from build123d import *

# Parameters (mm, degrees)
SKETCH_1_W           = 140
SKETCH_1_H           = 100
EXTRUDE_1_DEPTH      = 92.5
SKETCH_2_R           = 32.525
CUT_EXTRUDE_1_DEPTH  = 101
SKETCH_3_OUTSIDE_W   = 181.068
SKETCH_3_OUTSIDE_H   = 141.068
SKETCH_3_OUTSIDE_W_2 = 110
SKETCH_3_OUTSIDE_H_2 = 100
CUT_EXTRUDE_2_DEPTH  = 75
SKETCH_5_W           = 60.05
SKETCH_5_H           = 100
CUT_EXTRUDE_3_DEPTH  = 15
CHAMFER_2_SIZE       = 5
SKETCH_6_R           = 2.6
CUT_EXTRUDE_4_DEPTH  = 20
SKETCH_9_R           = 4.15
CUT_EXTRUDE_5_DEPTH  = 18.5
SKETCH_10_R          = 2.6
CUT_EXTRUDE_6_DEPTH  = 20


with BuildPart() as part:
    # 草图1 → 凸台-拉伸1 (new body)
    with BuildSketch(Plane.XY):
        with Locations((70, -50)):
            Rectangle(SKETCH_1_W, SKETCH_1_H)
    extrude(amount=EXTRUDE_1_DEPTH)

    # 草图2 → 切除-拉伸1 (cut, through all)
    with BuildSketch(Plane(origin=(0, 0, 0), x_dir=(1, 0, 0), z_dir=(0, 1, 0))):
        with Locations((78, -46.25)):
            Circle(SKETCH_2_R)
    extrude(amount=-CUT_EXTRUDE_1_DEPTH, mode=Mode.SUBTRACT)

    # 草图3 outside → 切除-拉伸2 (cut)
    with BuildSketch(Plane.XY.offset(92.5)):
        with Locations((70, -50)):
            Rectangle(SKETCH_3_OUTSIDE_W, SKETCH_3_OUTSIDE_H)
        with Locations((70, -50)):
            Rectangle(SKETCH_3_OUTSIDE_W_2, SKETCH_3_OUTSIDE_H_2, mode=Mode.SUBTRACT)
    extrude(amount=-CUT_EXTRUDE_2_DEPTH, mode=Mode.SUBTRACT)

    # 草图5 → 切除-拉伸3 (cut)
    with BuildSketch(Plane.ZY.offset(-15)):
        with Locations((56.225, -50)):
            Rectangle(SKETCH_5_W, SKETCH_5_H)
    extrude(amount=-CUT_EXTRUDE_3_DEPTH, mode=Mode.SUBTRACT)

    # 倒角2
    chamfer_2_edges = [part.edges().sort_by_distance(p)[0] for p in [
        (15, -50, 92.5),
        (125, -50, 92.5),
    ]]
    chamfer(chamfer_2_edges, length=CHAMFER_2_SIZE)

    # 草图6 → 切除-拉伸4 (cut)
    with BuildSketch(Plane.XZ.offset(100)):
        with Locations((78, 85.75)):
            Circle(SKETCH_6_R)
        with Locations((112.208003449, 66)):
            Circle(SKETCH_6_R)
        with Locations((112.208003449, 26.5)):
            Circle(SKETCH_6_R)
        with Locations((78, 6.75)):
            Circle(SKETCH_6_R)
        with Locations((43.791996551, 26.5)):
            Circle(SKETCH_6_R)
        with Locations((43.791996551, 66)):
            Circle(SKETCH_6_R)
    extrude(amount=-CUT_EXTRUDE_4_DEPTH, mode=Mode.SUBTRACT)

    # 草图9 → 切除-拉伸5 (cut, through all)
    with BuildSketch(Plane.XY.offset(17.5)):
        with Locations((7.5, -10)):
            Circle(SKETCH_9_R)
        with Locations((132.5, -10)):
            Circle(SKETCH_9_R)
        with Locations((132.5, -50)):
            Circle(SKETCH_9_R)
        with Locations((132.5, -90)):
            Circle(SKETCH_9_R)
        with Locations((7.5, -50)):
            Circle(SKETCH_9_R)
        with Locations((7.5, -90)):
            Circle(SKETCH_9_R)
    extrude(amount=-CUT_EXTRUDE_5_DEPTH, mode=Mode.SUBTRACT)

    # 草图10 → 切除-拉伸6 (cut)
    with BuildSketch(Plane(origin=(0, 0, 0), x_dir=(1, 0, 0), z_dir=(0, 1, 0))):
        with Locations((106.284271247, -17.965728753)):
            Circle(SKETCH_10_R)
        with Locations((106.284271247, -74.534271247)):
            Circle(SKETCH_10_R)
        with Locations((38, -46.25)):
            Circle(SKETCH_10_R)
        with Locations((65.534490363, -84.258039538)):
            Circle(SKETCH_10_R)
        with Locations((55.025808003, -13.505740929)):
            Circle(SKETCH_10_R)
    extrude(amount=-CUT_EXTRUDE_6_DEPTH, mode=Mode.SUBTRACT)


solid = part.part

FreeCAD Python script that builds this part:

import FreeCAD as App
import Part
import Sketcher

V = App.Vector
Q = App.Units.Quantity


def edges_at(feature, points):
    """Names of the edges that pass closest to the given points."""
    edges = feature.Shape.Edges
    near = lambda p: min(range(len(edges)), key=lambda i: edges[i].distToShape(Part.Vertex(*p))[0])
    return sorted({f"Edge{near(p) + 1}" for p in points})

doc = App.newDocument("Part")
body = doc.addObject("PartDesign::Body", "Body")

sketch1 = doc.addObject("Sketcher::SketchObject", "Sketch")
body.addObject(sketch1)
sketch1.AttachmentSupport = (doc.XY_Plane, [""])
sketch1.MapMode = "FlatFace"
sketch1.addGeometry([
    Part.LineSegment(V(0, 0, 0), V(0, -100, 0)),
    Part.LineSegment(V(0, -100, 0), V(140, -100, 0)),
    Part.LineSegment(V(140, -100, 0), V(140, 0, 0)),
    Part.LineSegment(V(140, 0, 0), V(0, 0, 0)),
], False)
sketch1.addConstraint([
    Sketcher.Constraint("Coincident", 0, 2, 1, 1),
    Sketcher.Constraint("Coincident", 1, 2, 2, 1),
    Sketcher.Constraint("Coincident", 2, 2, 3, 1),
    Sketcher.Constraint("Coincident", 3, 2, 0, 1),
    Sketcher.Constraint("Vertical", 0),
    Sketcher.Constraint("Horizontal", 1),
    Sketcher.Constraint("Vertical", 2),
    Sketcher.Constraint("Horizontal", 3),
    Sketcher.Constraint("Coincident", 3, 2, -1, 1),
    Sketcher.Constraint("DistanceX", 1, 1, 1, 2, Q("140 mm")),
    Sketcher.Constraint("DistanceY", 0, 2, 0, 1, Q("100 mm")),
])
pad1 = doc.addObject("PartDesign::Pad", "Pad")
body.addObject(pad1)
pad1.Profile = sketch1
pad1.Length = 92.5

sketch2 = doc.addObject("Sketcher::SketchObject", "Sketch001")
body.addObject(sketch2)
sketch2.AttachmentSupport = (doc.XZ_Plane, [""])
sketch2.MapMode = "FlatFace"
sketch2.addGeometry(Part.Circle(V(78, 46, 0), V(0, 0, 1), 33), False)
sketch2.addConstraint([
    Sketcher.Constraint("Diameter", 0, Q("65.05 mm")),
    Sketcher.Constraint("DistanceX", -1, 1, 0, 3, Q("78 mm")),
    Sketcher.Constraint("DistanceY", -1, 1, 0, 3, Q("46.25 mm")),
])
pocket1 = doc.addObject("PartDesign::Pocket", "Pocket")
body.addObject(pocket1)
pocket1.Profile = sketch2
pocket1.Type = "ThroughAll"
pocket1.Reversed = True

sketch3 = doc.addObject("Sketcher::SketchObject", "Sketch002")
body.addObject(sketch3)
sketch3.AttachmentSupport = (doc.XY_Plane, [""])
sketch3.MapMode = "FlatFace"
sketch3.AttachmentOffset = App.Placement(V(0, 0, 92.5), App.Rotation())
sketch3.addGeometry([
    Part.LineSegment(V(-21, 21, 0), V(-21, -121, 0)),
    Part.LineSegment(V(-21, -121, 0), V(161, -121, 0)),
    Part.LineSegment(V(161, -121, 0), V(161, 21, 0)),
    Part.LineSegment(V(161, 21, 0), V(-21, 21, 0)),
    Part.LineSegment(V(125, -100, 0), V(15, -100, 0)),
    Part.LineSegment(V(15, -100, 0), V(15, 0, 0)),
    Part.LineSegment(V(15, 0, 0), V(125, 0, 0)),
    Part.LineSegment(V(125, 0, 0), V(125, -100, 0)),
], False)
sketch3.addConstraint([
    Sketcher.Constraint("Coincident", 0, 2, 1, 1),
    Sketcher.Constraint("Coincident", 1, 2, 2, 1),
    Sketcher.Constraint("Coincident", 2, 2, 3, 1),
    Sketcher.Constraint("Coincident", 3, 2, 0, 1),
    Sketcher.Constraint("Coincident", 4, 2, 5, 1),
    Sketcher.Constraint("Coincident", 5, 2, 6, 1),
    Sketcher.Constraint("Coincident", 6, 2, 7, 1),
    Sketcher.Constraint("Coincident", 7, 2, 4, 1),
    Sketcher.Constraint("Vertical", 0),
    Sketcher.Constraint("Horizontal", 1),
    Sketcher.Constraint("Vertical", 2),
    Sketcher.Constraint("Horizontal", 3),
    Sketcher.Constraint("Horizontal", 4),
    Sketcher.Constraint("Vertical", 5),
    Sketcher.Constraint("Horizontal", 6),
    Sketcher.Constraint("Vertical", 7),
    Sketcher.Constraint("PointOnObject", 5, 2, -1),
    Sketcher.Constraint("DistanceX", 4, 2, 4, 1, Q("110 mm")),
    Sketcher.Constraint("DistanceY", 5, 1, 5, 2, Q("100 mm")),
    Sketcher.Constraint("DistanceX", -1, 1, 4, 2, Q("15 mm")),
    Sketcher.Constraint("DistanceX", 1, 1, 1, 2, Q("181.068 mm")),
    Sketcher.Constraint("DistanceY", 0, 2, 0, 1, Q("141.068 mm")),
    Sketcher.Constraint("DistanceX", 0, 2, -1, 1, Q("20.534 mm")),
    Sketcher.Constraint("DistanceY", 0, 2, -1, 1, Q("120.534 mm")),
])
pocket2 = doc.addObject("PartDesign::Pocket", "Pocket001")
body.addObject(pocket2)
pocket2.Profile = sketch3
pocket2.Length = 75

sketch4 = doc.addObject("Sketcher::SketchObject", "Sketch003")
body.addObject(sketch4)
sketch4.AttachmentSupport = (doc.YZ_Plane, [""])
sketch4.MapMode = "FlatFace"
sketch4.AttachmentOffset = App.Placement(V(0, 0, 15), App.Rotation())
sketch4.addGeometry([
    Part.LineSegment(V(0, 26, 0), V(-100, 26, 0)),
    Part.LineSegment(V(-100, 26, 0), V(-100, 86, 0)),
    Part.LineSegment(V(-100, 86, 0), V(0, 86, 0)),
    Part.LineSegment(V(0, 86, 0), V(0, 26, 0)),
], False)
sketch4.addConstraint([
    Sketcher.Constraint("Coincident", 0, 2, 1, 1),
    Sketcher.Constraint("Coincident", 1, 2, 2, 1),
    Sketcher.Constraint("Coincident", 2, 2, 3, 1),
    Sketcher.Constraint("Coincident", 3, 2, 0, 1),
    Sketcher.Constraint("Horizontal", 0),
    Sketcher.Constraint("Vertical", 1),
    Sketcher.Constraint("Horizontal", 2),
    Sketcher.Constraint("Vertical", 3),
    Sketcher.Constraint("PointOnObject", 2, 2, -2),
    Sketcher.Constraint("DistanceX", 0, 2, 0, 1, Q("100 mm")),
    Sketcher.Constraint("DistanceY", 1, 1, 1, 2, Q("60.05 mm")),
    Sketcher.Constraint("DistanceY", -1, 1, 0, 2, Q("26.2 mm")),
])
pocket3 = doc.addObject("PartDesign::Pocket", "Pocket002")
body.addObject(pocket3)
pocket3.Profile = sketch4
pocket3.Length = 15
pocket3.Reversed = True
doc.recompute()

chamfer = doc.addObject("PartDesign::Chamfer", "Chamfer")
body.addObject(chamfer)
chamfer.Base = (pocket3, edges_at(pocket3, [(15, -50, 92.5), (125, -50, 92.5)]))
chamfer.Size = 5

sketch5 = doc.addObject("Sketcher::SketchObject", "Sketch004")
body.addObject(sketch5)
sketch5.AttachmentSupport = (doc.XZ_Plane, [""])
sketch5.MapMode = "FlatFace"
sketch5.AttachmentOffset = App.Placement(V(0, 0, 100), App.Rotation())
sketch5.addGeometry([
    Part.Circle(V(78, 85.8, 0), V(0, 0, 1), 2.6),
    Part.Circle(V(112.2, 66, 0), V(0, 0, 1), 2.6),
    Part.Circle(V(112.2, 26.5, 0), V(0, 0, 1), 2.6),
    Part.Circle(V(78, 6.8, 0), V(0, 0, 1), 2.6),
    Part.Circle(V(43.8, 26.5, 0), V(0, 0, 1), 2.6),
    Part.Circle(V(43.8, 66, 0), V(0, 0, 1), 2.6),
], False)
sketch5.addConstraint([
    Sketcher.Constraint("Equal", 0, 1),
    Sketcher.Constraint("Equal", 1, 2),
    Sketcher.Constraint("Equal", 2, 3),
    Sketcher.Constraint("Equal", 3, 4),
    Sketcher.Constraint("Equal", 4, 5),
    Sketcher.Constraint("Horizontal", 2, 3, 4, 3),
    Sketcher.Constraint("Horizontal", 1, 3, 5, 3),
    Sketcher.Constraint("Vertical", 1, 3, 2, 3),
    Sketcher.Constraint("Vertical", 0, 3, 3, 3),
    Sketcher.Constraint("Vertical", 4, 3, 5, 3),
    Sketcher.Constraint("Diameter", 0, Q("5.2 mm")),
    Sketcher.Constraint("DistanceX", -1, 1, 0, 3, Q("78 mm")),
    Sketcher.Constraint("DistanceY", -1, 1, 1, 3, Q("66 mm")),
    Sketcher.Constraint("DistanceY", 3, 3, 0, 3, Q("79 mm")),
    Sketcher.Constraint("DistanceY", -1, 1, 2, 3, Q("26.5 mm")),
    Sketcher.Constraint("DistanceY", -1, 1, 0, 3, Q("85.75 mm")),
    Sketcher.Constraint("DistanceX", -1, 1, 1, 3, Q("112.208003 mm")),
    Sketcher.Constraint("DistanceX", -1, 1, 4, 3, Q("43.791997 mm")),
])
pocket4 = doc.addObject("PartDesign::Pocket", "Pocket003")
body.addObject(pocket4)
pocket4.Profile = sketch5
pocket4.Length = 20

sketch6 = doc.addObject("Sketcher::SketchObject", "Sketch005")
body.addObject(sketch6)
sketch6.AttachmentSupport = (doc.XY_Plane, [""])
sketch6.MapMode = "FlatFace"
sketch6.AttachmentOffset = App.Placement(V(0, 0, 17.5), App.Rotation())
sketch6.addGeometry([
    Part.Circle(V(7.5, -10, 0), V(0, 0, 1), 4.2),
    Part.Circle(V(132.5, -10, 0), V(0, 0, 1), 4.2),
    Part.Circle(V(132.5, -50, 0), V(0, 0, 1), 4.2),
    Part.Circle(V(132.5, -90, 0), V(0, 0, 1), 4.2),
    Part.Circle(V(7.5, -50, 0), V(0, 0, 1), 4.2),
    Part.Circle(V(7.5, -90, 0), V(0, 0, 1), 4.2),
], False)
sketch6.addConstraint([
    Sketcher.Constraint("Equal", 0, 1),
    Sketcher.Constraint("Equal", 1, 2),
    Sketcher.Constraint("Equal", 2, 3),
    Sketcher.Constraint("Equal", 3, 4),
    Sketcher.Constraint("Equal", 4, 5),
    Sketcher.Constraint("Horizontal", 0, 3, 1, 3),
    Sketcher.Constraint("Horizontal", 2, 3, 4, 3),
    Sketcher.Constraint("Horizontal", 3, 3, 5, 3),
    Sketcher.Constraint("Vertical", 1, 3, 2, 3),
    Sketcher.Constraint("Vertical", 2, 3, 3, 3),
    Sketcher.Constraint("Vertical", 0, 3, 4, 3),
    Sketcher.Constraint("Vertical", 4, 3, 5, 3),
    Sketcher.Constraint("Diameter", 0, Q("8.3 mm")),
    Sketcher.Constraint("DistanceY", 0, 3, -1, 1, Q("10 mm")),
    Sketcher.Constraint("DistanceY", 2, 3, -1, 1, Q("50 mm")),
    Sketcher.Constraint("DistanceY", 3, 3, -1, 1, Q("90 mm")),
    Sketcher.Constraint("DistanceX", 0, 3, 1, 3, Q("125 mm")),
    Sketcher.Constraint("DistanceX", -1, 1, 0, 3, Q("7.5 mm")),
])
pocket5 = doc.addObject("PartDesign::Pocket", "Pocket004")
body.addObject(pocket5)
pocket5.Profile = sketch6
pocket5.Type = "ThroughAll"

sketch7 = doc.addObject("Sketcher::SketchObject", "Sketch006")
body.addObject(sketch7)
sketch7.AttachmentSupport = (doc.XZ_Plane, [""])
sketch7.MapMode = "FlatFace"
sketch7.addGeometry([
    Part.Circle(V(106.3, 18, 0), V(0, 0, 1), 2.6),
    Part.Circle(V(106.3, 74.5, 0), V(0, 0, 1), 2.6),
    Part.Circle(V(38, 46.2, 0), V(0, 0, 1), 2.6),
    Part.Circle(V(65.5, 84.3, 0), V(0, 0, 1), 2.6),
    Part.Circle(V(55, 13.5, 0), V(0, 0, 1), 2.6),
], False)
sketch7.addConstraint([
    Sketcher.Constraint("Equal", 0, 1),
    Sketcher.Constraint("Equal", 1, 2),
    Sketcher.Constraint("Equal", 2, 3),
    Sketcher.Constraint("Equal", 3, 4),
    Sketcher.Constraint("Vertical", 0, 3, 1, 3),
    Sketcher.Constraint("Diameter", 0, Q("5.2 mm")),
    Sketcher.Constraint("DistanceX", -1, 1, 2, 3, Q("38 mm")),
    Sketcher.Constraint("DistanceY", -1, 1, 2, 3, Q("46.25 mm")),
    Sketcher.Constraint("DistanceY", 4, 3, 3, 3, Q("70.752299 mm")),
    Sketcher.Constraint("DistanceX", -1, 1, 0, 3, Q("106.284271 mm")),
    Sketcher.Constraint("DistanceY", -1, 1, 0, 3, Q("17.965729 mm")),
    Sketcher.Constraint("DistanceY", -1, 1, 1, 3, Q("74.534271 mm")),
    Sketcher.Constraint("DistanceX", -1, 1, 3, 3, Q("65.53449 mm")),
    Sketcher.Constraint("DistanceY", -1, 1, 3, 3, Q("84.25804 mm")),
    Sketcher.Constraint("DistanceX", -1, 1, 4, 3, Q("55.025808 mm")),
])
pocket6 = doc.addObject("PartDesign::Pocket", "Pocket005")
body.addObject(pocket6)
pocket6.Profile = sketch7
pocket6.Length = 20
pocket6.Reversed = True

doc.recompute()
